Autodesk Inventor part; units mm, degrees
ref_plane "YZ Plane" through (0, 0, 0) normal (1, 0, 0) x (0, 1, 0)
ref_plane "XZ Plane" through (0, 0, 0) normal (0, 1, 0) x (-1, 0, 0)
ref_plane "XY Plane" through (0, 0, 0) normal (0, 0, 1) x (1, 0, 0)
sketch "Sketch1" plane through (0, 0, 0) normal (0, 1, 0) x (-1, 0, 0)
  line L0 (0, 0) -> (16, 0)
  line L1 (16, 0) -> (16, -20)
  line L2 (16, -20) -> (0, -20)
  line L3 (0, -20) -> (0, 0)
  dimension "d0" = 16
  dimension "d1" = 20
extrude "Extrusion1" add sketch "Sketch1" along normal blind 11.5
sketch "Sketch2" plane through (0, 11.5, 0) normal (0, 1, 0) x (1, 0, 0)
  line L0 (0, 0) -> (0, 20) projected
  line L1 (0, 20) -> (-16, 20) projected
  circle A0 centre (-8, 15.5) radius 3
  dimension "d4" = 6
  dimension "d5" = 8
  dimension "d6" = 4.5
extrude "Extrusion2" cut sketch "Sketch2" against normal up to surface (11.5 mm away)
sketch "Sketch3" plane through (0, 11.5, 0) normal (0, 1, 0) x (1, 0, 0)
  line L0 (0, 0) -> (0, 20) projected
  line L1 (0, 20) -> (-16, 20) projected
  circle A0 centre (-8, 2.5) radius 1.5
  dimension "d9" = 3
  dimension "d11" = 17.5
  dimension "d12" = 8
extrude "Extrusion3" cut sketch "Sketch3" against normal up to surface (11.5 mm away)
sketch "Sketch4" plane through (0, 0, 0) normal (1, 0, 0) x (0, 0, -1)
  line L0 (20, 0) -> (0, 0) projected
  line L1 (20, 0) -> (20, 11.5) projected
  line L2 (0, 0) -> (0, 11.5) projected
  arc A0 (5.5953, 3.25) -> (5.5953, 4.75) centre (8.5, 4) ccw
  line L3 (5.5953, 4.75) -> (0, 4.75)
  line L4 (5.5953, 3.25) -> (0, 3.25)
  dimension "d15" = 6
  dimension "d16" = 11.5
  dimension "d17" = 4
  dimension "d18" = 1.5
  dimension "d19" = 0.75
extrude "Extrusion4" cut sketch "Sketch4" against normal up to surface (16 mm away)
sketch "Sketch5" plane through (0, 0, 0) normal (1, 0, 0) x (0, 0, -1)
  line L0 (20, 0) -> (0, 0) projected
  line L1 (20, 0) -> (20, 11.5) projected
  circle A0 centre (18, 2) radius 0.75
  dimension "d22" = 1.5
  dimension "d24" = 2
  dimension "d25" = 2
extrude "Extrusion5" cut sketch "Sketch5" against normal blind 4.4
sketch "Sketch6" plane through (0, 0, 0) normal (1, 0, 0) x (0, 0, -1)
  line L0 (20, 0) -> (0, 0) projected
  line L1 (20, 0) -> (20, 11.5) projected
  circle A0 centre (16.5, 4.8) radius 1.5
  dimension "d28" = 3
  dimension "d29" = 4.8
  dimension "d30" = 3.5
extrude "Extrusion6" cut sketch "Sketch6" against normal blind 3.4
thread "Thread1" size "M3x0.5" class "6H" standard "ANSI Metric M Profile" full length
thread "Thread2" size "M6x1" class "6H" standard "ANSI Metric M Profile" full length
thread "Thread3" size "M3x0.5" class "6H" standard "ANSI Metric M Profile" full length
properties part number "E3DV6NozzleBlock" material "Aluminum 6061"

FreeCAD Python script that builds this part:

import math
import FreeCAD as App
import Part
import Sketcher

V = App.Vector

doc = App.newDocument("Part")
params = doc.addObject("Spreadsheet::Sheet", "Params")
for row, (alias, value) in enumerate([
    ("sketch1_width", "16 mm"),
    ("sketch1_height", "20 mm"),
    ("pad1_length", "11.5 mm"),
    ("sketch2_diameter", "6 mm"),
    ("pocket1_length", "11.5 mm"),
    ("sketch3_diameter", "3 mm"),
    ("pocket2_length", "11.5 mm"),
    ("sketch4_radius", "3 mm"),
    ("sketch4_width", "1.5 mm"),
    ("pocket3_length", "16 mm"),
    ("sketch5_diameter", "1.5 mm"),
    ("pocket4_length", "4.4 mm"),
    ("sketch6_diameter", "3 mm"),
    ("pocket5_length", "3.4 mm"),
], start=1):
    params.set(f"A{row}", alias)
    params.set(f"B{row}", "=" + value)
    params.setAlias(f"B{row}", alias)

body = doc.addObject("PartDesign::Body", "Body")

# Sketch on XZ plane
sketch1 = doc.addObject("Sketcher::SketchObject", "Sketch")
body.addObject(sketch1)
sketch1.AttachmentSupport = (doc.XZ_Plane, [""])
sketch1.MapMode = "FlatFace"
sketch1.addGeometry([
    Part.LineSegment(V(-16, 0, 0), V(0, 0, 0)),
    Part.LineSegment(V(0, 0, 0), V(0, -20, 0)),
    Part.LineSegment(V(0, -20, 0), V(-16, -20, 0)),
    Part.LineSegment(V(-16, -20, 0), V(-16, 0, 0)),
], False)
sketch1.addConstraint([
    Sketcher.Constraint("Coincident", 0, 2, 1, 1),
    Sketcher.Constraint("Coincident", 1, 2, 2, 1),
    Sketcher.Constraint("Coincident", 2, 2, 3, 1),
    Sketcher.Constraint("Coincident", 3, 2, 0, 1),
    Sketcher.Constraint("Horizontal", 0),
    Sketcher.Constraint("Vertical", 1),
    Sketcher.Constraint("Horizontal", 2),
    Sketcher.Constraint("Vertical", 3),
    Sketcher.Constraint("Coincident", 0, 2, -1, 1),
    Sketcher.Constraint("DistanceX", 0, 1, 0, 2, 16.0),
    Sketcher.Constraint("DistanceY", 1, 2, 1, 1, 20.0),
])
sketch1.setExpression("Constraints[9]", "Params.sketch1_width")
sketch1.setExpression("Constraints[10]", "Params.sketch1_height")
pad1 = doc.addObject("PartDesign::Pad", "Pad")
body.addObject(pad1)
pad1.Profile = sketch1
pad1.setExpression("Length", "Params.pad1_length")
pad1.Reversed = True

# Sketch on XZ plane
sketch2 = doc.addObject("Sketcher::SketchObject", "Sketch001")
body.addObject(sketch2)
sketch2.AttachmentSupport = (doc.XZ_Plane, [""])
sketch2.MapMode = "FlatFace"
sketch2.AttachmentOffset = App.Placement(V(0, 0, -11.5), App.Rotation())
sketch2.addGeometry(Part.Circle(V(-8, -15.5, 0), V(0, 0, 1), 3), False)
sketch2.addConstraint([
    Sketcher.Constraint("Diameter", 0, 6.0),
    Sketcher.Constraint("DistanceX", 0, 3, -1, 1, 8.0),
    Sketcher.Constraint("DistanceY", 0, 3, -1, 1, 15.5),
])
sketch2.setExpression("Constraints[0]", "Params.sketch2_diameter")
pocket1 = doc.addObject("PartDesign::Pocket", "Pocket")
body.addObject(pocket1)
pocket1.Profile = sketch2
pocket1.setExpression("Length", "Params.pocket1_length")
pocket1.Reversed = True

# Sketch on XZ plane
sketch3 = doc.addObject("Sketcher::SketchObject", "Sketch002")
body.addObject(sketch3)
sketch3.AttachmentSupport = (doc.XZ_Plane, [""])
sketch3.MapMode = "FlatFace"
sketch3.AttachmentOffset = App.Placement(V(0, 0, -11.5), App.Rotation())
sketch3.addGeometry(Part.Circle(V(-8, -2.5, 0), V(0, 0, 1), 1.5), False)
sketch3.addConstraint([
    Sketcher.Constraint("Diameter", 0, 3.0),
    Sketcher.Constraint("DistanceX", 0, 3, -1, 1, 8.0),
    Sketcher.Constraint("DistanceY", 0, 3, -1, 1, 2.5),
])
sketch3.setExpression("Constraints[0]", "Params.sketch3_diameter")
pocket2 = doc.addObject("PartDesign::Pocket", "Pocket001")
body.addObject(pocket2)
pocket2.Profile = sketch3
pocket2.setExpression("Length", "Params.pocket2_length")
pocket2.Reversed = True

# Sketch on YZ plane
sketch4 = doc.addObject("Sketcher::SketchObject", "Sketch003")
body.addObject(sketch4)
sketch4.AttachmentSupport = (doc.YZ_Plane, [""])
sketch4.MapMode = "FlatFace"
sketch4.addGeometry([
    Part.LineSegment(V(4.8, 0, 0), V(3.2, 0, 0)),
    Part.LineSegment(V(3.2, 0, 0), V(3.2, -5.6, 0)),
    Part.ArcOfCircle(Part.Circle(V(4, -8.5, 0), V(0, 0, 1), 3), math.radians(104), math.radians(436)),
    Part.LineSegment(V(4.8, -5.6, 0), V(4.8, 0, 0)),
], False)
sketch4.addConstraint([
    Sketcher.Constraint("Coincident", 0, 2, 1, 1),
    Sketcher.Constraint("Coincident", 1, 2, 2, 1),
    Sketcher.Constraint("Coincident", 2, 2, 3, 1),
    Sketcher.Constraint("Coincident", 3, 2, 0, 1),
    Sketcher.Constraint("Horizontal", 0),
    Sketcher.Constraint("Vertical", 1),
    Sketcher.Constraint("Vertical", 3),
    Sketcher.Constraint("PointOnObject", 0, 2, -1),
    Sketcher.Constraint("Horizontal", 1, 2, 2, 2),
    Sketcher.Constraint("Radius", 2, 3.0),
    Sketcher.Constraint("DistanceX", 0, 2, 0, 1, 1.5),
    Sketcher.Constraint("DistanceX", -1, 1, 2, 3, 4.0),
    Sketcher.Constraint("DistanceY", 2, 3, -1, 1, 8.5),
])
sketch4.setExpression("Constraints[9]", "Params.sketch4_radius")
sketch4.setExpression("Constraints[10]", "Params.sketch4_width")
pocket3 = doc.addObject("PartDesign::Pocket", "Pocket002")
body.addObject(pocket3)
pocket3.Profile = sketch4
pocket3.setExpression("Length", "Params.pocket3_length")

# Sketch on YZ plane
sketch5 = doc.addObject("Sketcher::SketchObject", "Sketch004")
body.addObject(sketch5)
sketch5.AttachmentSupport = (doc.YZ_Plane, [""])
sketch5.MapMode = "FlatFace"
sketch5.addGeometry(Part.Circle(V(2, -18, 0), V(0, 0, 1), 0.8), False)
sketch5.addConstraint([
    Sketcher.Constraint("Diameter", 0, 1.5),
    Sketcher.Constraint("DistanceX", -1, 1, 0, 3, 2.0),
    Sketcher.Constraint("DistanceY", 0, 3, -1, 1, 18.0),
])
sketch5.setExpression("Constraints[0]", "Params.sketch5_diameter")
pocket4 = doc.addObject("PartDesign::Pocket", "Pocket003")
body.addObject(pocket4)
pocket4.Profile = sketch5
pocket4.setExpression("Length", "Params.pocket4_length")

# Sketch on YZ plane
sketch6 = doc.addObject("Sketcher::SketchObject", "Sketch005")
body.addObject(sketch6)
sketch6.AttachmentSupport = (doc.YZ_Plane, [""])
sketch6.MapMode = "FlatFace"
sketch6.addGeometry(Part.Circle(V(4.8, -16.5, 0), V(0, 0, 1), 1.5), False)
sketch6.addConstraint([
    Sketcher.Constraint("Diameter", 0, 3.0),
    Sketcher.Constraint("DistanceX", -1, 1, 0, 3, 4.8),
    Sketcher.Constraint("DistanceY", 0, 3, -1, 1, 16.5),
])
sketch6.setExpression("Constraints[0]", "Params.sketch6_diameter")
pocket5 = doc.addObject("PartDesign::Pocket", "Pocket004")
body.addObject(pocket5)
pocket5.Profile = sketch6
pocket5.setExpression("Length", "Params.pocket5_length")

doc.recompute()
